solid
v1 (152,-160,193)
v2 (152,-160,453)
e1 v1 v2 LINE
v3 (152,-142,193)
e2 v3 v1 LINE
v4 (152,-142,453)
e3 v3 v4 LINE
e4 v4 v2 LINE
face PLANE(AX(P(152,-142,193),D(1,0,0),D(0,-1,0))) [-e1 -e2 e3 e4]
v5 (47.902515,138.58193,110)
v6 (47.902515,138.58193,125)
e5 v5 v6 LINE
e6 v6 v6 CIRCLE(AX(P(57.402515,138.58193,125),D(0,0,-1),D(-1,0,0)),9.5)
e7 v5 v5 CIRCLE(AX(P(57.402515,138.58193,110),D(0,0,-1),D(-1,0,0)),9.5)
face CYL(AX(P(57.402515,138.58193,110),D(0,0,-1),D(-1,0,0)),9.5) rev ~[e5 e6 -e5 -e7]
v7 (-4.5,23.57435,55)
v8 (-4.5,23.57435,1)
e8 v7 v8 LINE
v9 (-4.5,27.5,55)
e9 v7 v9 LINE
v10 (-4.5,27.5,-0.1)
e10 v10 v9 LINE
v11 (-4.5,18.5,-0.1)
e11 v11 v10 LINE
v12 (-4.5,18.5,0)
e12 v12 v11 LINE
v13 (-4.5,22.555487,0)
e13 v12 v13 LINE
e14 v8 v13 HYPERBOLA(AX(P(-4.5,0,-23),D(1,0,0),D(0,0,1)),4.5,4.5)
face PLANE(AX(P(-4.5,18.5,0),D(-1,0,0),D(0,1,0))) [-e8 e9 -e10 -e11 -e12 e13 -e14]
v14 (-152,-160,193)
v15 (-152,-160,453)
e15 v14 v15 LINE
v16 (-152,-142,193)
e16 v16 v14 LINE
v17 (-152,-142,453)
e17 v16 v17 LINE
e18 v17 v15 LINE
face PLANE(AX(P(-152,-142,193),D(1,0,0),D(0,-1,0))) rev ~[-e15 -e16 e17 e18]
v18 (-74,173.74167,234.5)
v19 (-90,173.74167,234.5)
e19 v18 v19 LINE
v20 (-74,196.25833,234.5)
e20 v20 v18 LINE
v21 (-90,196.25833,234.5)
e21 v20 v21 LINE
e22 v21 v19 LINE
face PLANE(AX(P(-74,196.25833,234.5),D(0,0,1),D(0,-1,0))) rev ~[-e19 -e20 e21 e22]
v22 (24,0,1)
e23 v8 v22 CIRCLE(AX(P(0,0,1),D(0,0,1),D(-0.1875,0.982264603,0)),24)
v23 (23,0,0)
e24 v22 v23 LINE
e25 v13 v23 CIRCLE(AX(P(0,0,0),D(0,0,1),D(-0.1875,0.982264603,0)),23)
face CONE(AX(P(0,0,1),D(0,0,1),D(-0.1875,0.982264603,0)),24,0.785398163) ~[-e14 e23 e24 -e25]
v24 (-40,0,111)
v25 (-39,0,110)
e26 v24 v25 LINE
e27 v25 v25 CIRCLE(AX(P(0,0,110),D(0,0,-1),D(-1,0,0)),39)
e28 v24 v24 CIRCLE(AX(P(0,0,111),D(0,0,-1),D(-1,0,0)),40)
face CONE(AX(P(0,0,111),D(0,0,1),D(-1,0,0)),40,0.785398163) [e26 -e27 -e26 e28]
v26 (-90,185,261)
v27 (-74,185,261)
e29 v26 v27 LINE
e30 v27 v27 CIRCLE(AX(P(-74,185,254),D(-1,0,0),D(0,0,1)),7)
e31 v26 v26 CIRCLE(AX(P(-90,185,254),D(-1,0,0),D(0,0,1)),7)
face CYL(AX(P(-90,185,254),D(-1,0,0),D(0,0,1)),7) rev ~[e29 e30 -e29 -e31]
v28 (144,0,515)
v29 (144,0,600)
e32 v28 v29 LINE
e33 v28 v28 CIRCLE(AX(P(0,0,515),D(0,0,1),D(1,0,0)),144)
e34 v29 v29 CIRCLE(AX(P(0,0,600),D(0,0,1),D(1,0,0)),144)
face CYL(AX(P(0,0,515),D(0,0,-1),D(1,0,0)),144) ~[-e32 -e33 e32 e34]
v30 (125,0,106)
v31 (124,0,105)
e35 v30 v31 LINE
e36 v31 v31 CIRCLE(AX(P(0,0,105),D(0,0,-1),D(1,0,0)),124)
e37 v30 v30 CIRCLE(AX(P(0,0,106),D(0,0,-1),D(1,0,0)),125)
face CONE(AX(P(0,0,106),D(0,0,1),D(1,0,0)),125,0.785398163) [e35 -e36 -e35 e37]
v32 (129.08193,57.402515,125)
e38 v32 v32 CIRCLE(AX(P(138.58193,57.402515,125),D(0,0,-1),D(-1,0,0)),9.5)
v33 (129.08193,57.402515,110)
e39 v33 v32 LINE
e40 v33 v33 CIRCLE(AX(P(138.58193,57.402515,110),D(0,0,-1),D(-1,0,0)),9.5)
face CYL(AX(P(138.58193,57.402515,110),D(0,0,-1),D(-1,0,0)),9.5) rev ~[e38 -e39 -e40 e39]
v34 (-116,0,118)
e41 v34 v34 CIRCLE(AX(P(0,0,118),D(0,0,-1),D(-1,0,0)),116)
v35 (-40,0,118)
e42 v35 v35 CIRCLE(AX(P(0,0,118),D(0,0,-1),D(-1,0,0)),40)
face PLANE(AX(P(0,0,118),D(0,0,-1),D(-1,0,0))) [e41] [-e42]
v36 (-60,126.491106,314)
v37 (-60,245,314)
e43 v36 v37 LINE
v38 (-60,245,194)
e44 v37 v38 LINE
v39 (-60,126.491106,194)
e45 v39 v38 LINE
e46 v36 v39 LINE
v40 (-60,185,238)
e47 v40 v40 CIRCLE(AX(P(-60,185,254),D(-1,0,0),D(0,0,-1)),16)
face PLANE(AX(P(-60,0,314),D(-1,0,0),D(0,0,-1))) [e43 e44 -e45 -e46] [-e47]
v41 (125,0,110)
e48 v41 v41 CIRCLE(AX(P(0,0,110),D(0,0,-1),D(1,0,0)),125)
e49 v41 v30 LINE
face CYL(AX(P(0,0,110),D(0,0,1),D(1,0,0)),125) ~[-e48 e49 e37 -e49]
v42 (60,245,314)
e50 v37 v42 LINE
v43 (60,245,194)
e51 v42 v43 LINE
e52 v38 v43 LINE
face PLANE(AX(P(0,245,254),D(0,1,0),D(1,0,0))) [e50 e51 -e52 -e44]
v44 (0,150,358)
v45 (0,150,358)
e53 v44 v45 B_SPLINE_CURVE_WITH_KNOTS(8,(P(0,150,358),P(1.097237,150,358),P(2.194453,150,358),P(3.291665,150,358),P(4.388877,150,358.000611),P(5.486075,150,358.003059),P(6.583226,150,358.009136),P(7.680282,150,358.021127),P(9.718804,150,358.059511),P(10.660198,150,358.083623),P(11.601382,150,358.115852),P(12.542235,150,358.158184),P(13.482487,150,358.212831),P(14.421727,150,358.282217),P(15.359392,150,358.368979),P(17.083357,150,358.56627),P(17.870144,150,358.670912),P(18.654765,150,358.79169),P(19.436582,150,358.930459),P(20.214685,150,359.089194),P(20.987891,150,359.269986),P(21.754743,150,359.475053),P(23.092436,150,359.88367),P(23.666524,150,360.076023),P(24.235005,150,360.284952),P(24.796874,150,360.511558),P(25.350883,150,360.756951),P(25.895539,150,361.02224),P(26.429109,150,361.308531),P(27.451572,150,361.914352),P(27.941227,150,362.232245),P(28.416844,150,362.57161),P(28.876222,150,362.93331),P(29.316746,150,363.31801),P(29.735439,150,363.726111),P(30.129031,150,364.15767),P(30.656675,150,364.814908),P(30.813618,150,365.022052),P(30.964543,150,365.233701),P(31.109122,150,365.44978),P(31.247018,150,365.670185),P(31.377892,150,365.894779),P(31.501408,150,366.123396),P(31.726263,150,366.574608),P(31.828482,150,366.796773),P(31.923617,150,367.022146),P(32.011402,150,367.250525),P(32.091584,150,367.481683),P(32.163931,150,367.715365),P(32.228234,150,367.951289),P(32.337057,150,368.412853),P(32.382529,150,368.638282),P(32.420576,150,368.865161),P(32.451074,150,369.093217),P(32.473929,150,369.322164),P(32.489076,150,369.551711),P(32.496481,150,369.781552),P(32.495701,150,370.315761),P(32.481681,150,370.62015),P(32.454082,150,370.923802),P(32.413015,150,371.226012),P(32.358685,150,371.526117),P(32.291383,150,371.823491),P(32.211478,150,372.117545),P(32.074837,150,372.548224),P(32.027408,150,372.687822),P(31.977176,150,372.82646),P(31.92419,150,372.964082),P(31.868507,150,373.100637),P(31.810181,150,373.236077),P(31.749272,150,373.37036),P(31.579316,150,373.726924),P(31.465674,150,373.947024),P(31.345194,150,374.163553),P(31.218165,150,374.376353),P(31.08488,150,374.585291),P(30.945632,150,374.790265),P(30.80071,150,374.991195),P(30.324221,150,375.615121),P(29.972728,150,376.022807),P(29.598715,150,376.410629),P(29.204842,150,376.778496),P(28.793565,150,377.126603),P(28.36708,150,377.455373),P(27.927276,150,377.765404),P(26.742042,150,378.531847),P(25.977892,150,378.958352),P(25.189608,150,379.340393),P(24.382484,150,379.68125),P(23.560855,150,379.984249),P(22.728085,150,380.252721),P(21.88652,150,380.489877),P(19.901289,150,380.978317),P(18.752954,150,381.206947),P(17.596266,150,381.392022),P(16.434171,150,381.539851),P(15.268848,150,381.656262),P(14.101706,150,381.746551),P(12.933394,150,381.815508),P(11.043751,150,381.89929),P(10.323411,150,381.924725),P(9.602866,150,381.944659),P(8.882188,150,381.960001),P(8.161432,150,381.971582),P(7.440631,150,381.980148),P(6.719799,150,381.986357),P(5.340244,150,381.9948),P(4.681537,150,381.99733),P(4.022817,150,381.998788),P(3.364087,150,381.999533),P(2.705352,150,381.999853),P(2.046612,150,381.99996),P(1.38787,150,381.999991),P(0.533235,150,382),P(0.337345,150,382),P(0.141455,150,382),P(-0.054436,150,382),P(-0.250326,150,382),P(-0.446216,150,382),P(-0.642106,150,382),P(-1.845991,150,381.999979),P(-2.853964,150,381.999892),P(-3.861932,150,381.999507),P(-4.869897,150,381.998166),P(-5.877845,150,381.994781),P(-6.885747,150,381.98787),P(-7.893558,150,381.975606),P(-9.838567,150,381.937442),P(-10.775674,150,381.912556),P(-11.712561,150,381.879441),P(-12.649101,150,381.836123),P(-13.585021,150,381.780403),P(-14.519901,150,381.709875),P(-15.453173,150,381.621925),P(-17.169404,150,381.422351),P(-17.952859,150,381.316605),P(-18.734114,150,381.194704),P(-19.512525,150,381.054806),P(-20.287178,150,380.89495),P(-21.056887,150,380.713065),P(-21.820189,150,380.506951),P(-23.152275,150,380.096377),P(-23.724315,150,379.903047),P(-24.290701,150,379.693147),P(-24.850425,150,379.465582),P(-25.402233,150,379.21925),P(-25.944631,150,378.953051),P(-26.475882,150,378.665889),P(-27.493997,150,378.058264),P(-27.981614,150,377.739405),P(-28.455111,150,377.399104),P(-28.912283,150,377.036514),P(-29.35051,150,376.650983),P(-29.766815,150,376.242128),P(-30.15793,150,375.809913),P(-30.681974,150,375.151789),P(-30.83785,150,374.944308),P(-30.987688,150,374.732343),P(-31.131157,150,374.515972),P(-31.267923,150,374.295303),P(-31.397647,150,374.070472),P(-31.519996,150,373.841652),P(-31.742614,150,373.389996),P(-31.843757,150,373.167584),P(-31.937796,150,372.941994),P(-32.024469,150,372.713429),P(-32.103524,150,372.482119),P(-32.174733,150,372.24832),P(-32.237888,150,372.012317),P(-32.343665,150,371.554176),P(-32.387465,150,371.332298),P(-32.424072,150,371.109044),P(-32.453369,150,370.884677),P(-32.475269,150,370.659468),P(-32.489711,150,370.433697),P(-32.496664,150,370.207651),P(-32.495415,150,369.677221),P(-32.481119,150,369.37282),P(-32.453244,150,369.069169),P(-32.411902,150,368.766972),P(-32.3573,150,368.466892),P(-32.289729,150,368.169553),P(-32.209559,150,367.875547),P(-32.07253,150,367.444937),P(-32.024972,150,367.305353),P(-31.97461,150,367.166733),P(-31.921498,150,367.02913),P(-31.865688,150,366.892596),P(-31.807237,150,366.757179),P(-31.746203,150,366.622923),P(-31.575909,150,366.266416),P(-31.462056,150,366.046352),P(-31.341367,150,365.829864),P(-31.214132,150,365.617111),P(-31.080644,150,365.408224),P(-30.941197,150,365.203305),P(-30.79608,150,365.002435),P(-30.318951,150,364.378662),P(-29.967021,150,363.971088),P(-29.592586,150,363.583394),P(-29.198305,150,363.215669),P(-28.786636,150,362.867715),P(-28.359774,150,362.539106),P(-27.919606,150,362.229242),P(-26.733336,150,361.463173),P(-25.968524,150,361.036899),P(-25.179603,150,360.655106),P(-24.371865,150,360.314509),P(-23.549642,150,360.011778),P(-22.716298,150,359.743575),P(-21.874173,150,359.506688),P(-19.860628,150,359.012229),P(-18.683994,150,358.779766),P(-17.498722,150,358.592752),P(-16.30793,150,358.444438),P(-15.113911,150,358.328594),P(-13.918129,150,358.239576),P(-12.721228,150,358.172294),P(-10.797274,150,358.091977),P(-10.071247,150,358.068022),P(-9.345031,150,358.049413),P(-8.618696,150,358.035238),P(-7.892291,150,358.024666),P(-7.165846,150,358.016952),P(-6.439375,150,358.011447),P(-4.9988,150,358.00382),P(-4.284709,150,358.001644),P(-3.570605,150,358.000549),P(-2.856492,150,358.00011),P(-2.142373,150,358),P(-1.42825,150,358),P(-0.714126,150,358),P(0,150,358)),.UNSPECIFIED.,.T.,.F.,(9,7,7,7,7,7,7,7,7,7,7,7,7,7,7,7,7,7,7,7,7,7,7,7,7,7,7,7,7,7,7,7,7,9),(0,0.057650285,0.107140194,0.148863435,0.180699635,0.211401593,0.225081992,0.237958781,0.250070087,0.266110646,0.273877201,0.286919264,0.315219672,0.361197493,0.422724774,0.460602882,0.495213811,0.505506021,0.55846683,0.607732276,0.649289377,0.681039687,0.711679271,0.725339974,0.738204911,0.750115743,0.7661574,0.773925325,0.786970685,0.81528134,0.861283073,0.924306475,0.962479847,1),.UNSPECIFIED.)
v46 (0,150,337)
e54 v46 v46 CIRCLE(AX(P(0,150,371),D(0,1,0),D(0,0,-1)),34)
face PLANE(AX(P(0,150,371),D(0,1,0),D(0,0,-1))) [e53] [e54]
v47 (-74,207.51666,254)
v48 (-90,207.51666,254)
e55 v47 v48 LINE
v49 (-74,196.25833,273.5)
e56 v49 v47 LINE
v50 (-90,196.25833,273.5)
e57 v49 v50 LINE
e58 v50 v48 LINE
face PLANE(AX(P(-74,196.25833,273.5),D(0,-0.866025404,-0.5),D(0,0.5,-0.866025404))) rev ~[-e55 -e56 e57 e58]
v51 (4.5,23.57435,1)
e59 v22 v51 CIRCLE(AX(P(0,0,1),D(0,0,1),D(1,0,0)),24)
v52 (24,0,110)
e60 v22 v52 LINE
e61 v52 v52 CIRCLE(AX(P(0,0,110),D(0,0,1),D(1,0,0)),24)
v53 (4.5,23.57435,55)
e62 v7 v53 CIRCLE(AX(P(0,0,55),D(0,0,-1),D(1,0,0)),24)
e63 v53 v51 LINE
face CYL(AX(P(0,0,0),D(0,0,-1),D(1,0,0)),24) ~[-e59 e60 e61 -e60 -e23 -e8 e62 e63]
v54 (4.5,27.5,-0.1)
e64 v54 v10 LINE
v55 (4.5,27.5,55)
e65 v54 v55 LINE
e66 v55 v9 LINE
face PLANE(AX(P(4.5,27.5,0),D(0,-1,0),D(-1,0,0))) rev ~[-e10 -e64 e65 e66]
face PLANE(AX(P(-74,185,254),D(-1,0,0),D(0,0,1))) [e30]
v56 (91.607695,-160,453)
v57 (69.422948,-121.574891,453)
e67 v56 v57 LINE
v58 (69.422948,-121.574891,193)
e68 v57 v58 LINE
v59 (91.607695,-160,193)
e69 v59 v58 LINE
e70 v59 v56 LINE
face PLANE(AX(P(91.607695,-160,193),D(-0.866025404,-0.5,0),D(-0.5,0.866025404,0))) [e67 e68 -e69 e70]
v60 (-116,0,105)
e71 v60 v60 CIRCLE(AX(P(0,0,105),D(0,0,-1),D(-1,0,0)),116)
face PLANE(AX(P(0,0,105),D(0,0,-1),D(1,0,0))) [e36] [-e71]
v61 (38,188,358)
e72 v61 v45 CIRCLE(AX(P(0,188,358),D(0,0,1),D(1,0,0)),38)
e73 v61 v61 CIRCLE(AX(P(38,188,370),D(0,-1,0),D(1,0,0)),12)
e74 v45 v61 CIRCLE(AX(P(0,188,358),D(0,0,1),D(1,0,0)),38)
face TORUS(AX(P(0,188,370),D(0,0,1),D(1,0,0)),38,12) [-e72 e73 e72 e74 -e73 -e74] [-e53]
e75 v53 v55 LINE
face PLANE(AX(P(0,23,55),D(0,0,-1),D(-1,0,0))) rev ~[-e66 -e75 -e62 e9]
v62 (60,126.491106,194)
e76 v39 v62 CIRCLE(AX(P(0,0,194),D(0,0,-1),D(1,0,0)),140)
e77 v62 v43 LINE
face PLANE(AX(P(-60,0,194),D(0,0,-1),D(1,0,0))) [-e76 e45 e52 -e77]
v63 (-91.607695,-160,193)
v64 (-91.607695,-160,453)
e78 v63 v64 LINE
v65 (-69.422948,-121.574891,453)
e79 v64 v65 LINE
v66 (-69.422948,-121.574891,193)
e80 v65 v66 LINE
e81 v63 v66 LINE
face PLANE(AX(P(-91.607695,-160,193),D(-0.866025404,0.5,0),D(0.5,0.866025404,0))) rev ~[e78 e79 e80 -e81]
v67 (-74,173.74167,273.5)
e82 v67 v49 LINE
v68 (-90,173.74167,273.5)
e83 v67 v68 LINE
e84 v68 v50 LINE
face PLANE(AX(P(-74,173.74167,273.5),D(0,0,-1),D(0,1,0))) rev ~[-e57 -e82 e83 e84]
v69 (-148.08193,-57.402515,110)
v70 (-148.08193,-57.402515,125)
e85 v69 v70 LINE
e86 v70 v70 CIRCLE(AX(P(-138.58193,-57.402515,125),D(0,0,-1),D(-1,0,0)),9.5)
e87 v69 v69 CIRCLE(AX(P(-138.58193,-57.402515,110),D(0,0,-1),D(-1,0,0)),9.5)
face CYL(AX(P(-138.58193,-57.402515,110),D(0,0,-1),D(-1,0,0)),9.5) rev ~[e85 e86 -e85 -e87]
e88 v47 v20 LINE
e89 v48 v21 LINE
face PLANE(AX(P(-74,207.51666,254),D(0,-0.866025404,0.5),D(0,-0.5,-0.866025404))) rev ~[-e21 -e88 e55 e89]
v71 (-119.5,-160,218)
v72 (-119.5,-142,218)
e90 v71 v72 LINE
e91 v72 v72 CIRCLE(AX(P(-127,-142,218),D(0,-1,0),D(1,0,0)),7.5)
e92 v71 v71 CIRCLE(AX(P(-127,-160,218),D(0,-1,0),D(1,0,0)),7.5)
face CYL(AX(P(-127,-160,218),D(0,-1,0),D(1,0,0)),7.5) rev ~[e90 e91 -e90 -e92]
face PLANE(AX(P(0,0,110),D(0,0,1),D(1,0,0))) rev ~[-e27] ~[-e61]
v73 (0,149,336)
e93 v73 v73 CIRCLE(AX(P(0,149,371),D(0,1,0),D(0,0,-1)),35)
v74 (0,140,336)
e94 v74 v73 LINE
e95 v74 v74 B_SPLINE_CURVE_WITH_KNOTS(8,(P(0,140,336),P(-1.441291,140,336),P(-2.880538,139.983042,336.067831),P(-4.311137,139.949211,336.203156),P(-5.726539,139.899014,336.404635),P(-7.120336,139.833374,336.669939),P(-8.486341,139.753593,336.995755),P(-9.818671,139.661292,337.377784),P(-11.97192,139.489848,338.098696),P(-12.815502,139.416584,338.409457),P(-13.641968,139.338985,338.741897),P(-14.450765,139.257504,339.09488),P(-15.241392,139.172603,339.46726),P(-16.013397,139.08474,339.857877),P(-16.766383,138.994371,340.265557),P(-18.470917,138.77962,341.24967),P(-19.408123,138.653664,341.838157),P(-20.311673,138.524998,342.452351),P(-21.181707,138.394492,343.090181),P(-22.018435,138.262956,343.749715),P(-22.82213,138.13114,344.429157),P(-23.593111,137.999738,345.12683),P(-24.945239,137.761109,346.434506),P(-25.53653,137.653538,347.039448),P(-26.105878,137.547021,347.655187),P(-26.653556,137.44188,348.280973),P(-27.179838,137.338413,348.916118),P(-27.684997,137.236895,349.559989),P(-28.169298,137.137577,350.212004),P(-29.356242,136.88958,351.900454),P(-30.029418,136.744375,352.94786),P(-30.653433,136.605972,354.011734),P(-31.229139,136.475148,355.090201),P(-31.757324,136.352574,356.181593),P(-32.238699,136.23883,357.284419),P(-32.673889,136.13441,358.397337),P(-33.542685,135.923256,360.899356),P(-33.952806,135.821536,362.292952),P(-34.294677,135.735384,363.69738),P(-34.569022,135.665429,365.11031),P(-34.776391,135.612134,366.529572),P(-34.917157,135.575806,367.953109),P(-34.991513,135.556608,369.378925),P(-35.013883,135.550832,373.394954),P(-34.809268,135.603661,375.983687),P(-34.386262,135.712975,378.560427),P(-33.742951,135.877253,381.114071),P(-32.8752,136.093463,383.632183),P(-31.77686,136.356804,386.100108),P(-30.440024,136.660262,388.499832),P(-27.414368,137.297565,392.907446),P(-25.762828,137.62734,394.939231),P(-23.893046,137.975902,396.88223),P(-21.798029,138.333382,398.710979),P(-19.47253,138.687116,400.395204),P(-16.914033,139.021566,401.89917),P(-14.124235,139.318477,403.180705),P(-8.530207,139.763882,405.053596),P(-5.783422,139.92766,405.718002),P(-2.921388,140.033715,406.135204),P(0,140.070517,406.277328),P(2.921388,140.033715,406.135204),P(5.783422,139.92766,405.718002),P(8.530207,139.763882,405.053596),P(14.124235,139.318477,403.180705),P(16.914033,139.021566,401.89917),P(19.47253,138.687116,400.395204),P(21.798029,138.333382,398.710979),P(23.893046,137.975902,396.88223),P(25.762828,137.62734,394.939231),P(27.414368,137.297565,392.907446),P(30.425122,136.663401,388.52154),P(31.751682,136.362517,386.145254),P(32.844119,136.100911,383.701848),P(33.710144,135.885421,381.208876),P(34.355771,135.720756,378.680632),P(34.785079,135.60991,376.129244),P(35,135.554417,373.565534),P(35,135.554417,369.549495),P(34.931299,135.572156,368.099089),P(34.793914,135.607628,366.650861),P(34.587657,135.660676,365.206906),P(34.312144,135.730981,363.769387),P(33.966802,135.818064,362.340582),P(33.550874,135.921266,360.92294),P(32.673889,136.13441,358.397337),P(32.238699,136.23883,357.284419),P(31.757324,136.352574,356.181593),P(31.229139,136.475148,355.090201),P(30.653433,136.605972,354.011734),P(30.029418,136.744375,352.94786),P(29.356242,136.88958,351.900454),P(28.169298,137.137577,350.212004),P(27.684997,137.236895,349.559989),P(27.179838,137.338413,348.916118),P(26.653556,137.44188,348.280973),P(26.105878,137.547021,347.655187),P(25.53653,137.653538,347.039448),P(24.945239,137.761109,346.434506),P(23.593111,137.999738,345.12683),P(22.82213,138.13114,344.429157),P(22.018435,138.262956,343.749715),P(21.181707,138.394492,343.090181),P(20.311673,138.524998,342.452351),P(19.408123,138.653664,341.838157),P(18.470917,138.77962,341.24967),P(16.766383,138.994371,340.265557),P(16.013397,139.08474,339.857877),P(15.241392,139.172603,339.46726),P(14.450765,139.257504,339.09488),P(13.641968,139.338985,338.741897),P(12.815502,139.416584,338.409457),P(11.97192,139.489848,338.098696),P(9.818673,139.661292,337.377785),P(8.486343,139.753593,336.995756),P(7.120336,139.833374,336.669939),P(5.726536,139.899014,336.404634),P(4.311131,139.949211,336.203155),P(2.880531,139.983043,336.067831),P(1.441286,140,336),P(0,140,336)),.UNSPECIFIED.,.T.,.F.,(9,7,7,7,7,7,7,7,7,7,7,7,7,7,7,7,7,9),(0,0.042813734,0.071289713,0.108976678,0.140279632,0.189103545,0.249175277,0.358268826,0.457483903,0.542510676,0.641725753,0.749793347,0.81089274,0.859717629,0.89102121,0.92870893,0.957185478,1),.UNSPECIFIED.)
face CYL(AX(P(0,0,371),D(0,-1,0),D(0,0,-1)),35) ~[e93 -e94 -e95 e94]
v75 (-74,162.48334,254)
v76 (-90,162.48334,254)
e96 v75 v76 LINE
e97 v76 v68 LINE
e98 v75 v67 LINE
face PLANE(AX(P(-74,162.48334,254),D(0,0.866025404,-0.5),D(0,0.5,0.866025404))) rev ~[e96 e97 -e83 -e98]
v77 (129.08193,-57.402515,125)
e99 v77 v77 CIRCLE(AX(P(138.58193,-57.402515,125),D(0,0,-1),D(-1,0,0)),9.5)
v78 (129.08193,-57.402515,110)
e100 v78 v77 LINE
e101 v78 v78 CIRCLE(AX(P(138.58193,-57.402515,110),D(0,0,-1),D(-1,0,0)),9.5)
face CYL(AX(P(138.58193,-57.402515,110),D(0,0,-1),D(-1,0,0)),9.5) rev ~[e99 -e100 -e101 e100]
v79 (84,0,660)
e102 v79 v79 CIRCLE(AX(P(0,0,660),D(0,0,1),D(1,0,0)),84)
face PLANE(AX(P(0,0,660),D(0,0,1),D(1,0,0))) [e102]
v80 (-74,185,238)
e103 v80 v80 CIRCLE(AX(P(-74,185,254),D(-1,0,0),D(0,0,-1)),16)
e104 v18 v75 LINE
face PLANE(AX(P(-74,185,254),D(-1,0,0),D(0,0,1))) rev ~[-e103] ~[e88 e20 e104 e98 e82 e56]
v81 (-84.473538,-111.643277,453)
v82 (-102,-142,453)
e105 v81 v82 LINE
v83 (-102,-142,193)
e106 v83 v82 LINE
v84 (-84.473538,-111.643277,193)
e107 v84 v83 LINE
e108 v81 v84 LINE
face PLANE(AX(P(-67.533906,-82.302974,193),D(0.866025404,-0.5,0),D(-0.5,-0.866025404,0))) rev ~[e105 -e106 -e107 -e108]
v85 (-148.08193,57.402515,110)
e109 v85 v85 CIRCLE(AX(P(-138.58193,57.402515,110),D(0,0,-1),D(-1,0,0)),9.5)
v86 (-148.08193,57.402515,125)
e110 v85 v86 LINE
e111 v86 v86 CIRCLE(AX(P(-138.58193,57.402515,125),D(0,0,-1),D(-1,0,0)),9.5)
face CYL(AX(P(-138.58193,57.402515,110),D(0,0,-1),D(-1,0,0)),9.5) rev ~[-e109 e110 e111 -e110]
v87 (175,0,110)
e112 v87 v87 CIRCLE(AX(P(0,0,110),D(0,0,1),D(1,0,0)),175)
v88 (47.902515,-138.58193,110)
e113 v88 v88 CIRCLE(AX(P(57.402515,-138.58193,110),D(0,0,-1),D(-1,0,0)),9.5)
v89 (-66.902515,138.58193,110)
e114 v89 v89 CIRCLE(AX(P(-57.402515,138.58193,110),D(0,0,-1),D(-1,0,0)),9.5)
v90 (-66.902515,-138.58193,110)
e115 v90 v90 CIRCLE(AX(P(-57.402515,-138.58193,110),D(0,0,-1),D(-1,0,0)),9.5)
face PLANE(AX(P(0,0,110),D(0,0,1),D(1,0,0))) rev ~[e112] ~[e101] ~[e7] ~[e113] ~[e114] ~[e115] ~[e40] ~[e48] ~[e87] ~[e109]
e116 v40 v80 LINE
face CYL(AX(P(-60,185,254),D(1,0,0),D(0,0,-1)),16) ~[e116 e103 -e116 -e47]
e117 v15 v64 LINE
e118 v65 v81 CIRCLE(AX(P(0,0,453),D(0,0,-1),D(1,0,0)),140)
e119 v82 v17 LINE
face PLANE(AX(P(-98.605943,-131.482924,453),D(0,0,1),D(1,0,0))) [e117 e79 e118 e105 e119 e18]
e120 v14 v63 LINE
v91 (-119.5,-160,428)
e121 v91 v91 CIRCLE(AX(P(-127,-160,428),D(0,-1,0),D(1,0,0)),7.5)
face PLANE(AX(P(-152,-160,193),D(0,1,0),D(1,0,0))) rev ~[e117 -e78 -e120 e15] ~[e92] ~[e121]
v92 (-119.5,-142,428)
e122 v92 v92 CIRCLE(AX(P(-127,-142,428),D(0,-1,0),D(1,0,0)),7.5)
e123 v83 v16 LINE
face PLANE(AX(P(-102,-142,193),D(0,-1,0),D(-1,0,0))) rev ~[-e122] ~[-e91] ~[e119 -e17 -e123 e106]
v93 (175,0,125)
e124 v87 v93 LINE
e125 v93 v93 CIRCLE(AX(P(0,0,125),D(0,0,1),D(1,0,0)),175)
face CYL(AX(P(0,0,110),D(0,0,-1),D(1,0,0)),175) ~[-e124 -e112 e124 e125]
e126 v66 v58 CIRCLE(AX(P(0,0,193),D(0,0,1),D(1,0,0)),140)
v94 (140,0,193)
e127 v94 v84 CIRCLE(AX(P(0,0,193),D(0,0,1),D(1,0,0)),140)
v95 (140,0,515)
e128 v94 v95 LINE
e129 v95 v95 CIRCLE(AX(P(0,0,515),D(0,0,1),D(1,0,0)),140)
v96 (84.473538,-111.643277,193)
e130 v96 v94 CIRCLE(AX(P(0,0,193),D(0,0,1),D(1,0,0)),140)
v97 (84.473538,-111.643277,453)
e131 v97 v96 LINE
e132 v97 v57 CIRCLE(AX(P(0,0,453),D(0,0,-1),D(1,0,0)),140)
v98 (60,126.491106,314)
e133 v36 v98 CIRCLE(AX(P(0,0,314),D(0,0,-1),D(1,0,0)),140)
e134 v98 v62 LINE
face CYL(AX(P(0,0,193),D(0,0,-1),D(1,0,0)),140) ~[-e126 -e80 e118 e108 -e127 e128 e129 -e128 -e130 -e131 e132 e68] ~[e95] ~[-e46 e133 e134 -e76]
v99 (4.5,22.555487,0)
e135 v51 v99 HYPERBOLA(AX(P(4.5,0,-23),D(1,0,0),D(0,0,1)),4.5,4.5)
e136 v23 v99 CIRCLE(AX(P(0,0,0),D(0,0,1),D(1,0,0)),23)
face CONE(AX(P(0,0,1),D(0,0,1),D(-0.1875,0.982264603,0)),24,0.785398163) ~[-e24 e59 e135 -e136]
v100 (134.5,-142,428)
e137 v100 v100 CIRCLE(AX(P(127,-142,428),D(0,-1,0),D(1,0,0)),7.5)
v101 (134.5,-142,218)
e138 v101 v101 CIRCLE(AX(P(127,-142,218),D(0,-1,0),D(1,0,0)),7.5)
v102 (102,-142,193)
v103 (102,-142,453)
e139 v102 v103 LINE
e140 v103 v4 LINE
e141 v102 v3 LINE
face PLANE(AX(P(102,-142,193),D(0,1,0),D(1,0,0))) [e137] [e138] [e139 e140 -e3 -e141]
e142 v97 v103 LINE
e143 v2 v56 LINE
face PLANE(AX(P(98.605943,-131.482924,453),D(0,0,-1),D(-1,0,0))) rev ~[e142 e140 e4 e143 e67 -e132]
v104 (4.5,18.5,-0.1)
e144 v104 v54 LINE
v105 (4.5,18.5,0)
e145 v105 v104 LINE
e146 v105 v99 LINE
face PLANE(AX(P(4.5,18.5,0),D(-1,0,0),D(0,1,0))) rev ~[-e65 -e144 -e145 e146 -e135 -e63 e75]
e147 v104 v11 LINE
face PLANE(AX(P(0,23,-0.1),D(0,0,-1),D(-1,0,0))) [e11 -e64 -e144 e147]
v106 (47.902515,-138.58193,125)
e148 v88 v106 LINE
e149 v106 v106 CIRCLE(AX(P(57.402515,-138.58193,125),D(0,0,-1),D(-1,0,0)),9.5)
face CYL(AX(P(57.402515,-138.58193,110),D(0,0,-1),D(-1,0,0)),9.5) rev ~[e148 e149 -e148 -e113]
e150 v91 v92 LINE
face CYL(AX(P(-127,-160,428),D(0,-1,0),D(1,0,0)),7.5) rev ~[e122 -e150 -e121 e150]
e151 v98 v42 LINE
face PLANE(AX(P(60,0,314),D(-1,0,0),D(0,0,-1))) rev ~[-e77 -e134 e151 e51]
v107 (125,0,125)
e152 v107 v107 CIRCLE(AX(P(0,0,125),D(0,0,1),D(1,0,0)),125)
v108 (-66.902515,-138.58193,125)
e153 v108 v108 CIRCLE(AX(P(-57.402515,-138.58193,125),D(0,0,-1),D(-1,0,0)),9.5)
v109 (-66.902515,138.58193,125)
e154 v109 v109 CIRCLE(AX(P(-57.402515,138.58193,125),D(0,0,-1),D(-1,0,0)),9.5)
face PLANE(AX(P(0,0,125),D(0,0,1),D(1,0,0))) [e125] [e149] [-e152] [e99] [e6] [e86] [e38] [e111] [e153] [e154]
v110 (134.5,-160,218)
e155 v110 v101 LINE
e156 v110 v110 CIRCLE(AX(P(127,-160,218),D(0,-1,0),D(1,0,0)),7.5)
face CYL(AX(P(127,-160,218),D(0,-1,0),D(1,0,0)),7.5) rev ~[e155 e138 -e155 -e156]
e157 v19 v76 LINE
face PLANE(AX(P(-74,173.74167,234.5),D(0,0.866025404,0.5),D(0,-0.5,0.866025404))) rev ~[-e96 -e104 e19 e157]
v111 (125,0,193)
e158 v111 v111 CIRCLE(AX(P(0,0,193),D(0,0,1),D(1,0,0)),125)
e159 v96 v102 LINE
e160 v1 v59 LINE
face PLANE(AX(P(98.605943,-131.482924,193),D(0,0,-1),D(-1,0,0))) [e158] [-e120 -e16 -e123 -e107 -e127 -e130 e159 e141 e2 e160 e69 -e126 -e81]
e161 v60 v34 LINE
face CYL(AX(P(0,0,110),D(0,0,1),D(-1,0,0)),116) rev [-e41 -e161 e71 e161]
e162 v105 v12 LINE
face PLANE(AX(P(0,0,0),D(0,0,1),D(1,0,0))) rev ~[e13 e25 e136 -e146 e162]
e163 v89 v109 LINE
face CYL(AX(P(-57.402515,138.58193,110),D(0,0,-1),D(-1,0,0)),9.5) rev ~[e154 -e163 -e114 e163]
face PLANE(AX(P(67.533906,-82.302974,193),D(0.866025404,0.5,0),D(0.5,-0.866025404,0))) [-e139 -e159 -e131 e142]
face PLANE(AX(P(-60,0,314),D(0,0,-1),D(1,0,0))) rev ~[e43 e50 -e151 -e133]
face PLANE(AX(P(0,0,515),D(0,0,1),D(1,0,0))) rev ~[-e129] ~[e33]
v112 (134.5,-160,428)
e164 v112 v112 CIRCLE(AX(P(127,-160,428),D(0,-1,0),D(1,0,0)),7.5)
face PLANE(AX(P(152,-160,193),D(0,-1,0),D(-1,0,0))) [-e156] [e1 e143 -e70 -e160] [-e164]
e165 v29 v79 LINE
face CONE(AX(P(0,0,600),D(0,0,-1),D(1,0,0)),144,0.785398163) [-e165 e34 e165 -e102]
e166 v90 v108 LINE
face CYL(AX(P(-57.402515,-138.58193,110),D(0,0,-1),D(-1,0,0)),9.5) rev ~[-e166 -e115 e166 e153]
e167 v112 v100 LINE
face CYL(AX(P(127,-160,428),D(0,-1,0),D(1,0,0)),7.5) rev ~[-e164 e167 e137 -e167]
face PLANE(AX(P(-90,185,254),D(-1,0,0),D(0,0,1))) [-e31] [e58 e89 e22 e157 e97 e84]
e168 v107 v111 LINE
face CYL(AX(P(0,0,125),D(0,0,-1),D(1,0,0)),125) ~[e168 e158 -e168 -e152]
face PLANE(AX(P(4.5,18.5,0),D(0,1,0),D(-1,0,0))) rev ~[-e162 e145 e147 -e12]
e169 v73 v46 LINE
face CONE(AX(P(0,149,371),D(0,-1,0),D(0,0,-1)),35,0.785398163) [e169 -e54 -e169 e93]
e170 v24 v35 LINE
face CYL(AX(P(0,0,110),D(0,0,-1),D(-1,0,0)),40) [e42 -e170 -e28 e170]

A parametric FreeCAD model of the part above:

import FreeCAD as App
import Part
import Sketcher

V = App.Vector
Q = App.Units.Quantity


def edges_at(feature, points):
    """Names of the edges that pass closest to the given points."""
    edges = feature.Shape.Edges
    near = lambda p: min(range(len(edges)), key=lambda i: edges[i].distToShape(Part.Vertex(*p))[0])
    return sorted({f"Edge{near(p) + 1}" for p in points})

doc = App.newDocument("Part")
body = doc.addObject("PartDesign::Body", "Body")

sketch1 = body.newObject("Sketcher::SketchObject", "Sketch")
sketch1.AttachmentSupport = (doc.getObject("XY_Plane"), [""])
sketch1.MapMode = "FlatFace"
sketch1.addGeometry(Part.Circle(V(0, 0, 0), V(0, 0, 1), 24), False)
sketch1.addConstraint([
    Sketcher.Constraint("Coincident", 0, 3, -1, 1),
    Sketcher.Constraint("Diameter", 0, Q("48 mm")),
])
pad1 = body.newObject("PartDesign::Pad", "Pad")
pad1.Profile = sketch1
pad1.Length = 110

sketch2 = body.newObject("Sketcher::SketchObject", "Sketch001")
sketch2.AttachmentSupport = (doc.getObject("XY_Plane"), [""])
sketch2.MapMode = "FlatFace"
sketch2.addGeometry([
    Part.LineSegment(V(4, 28, 0), V(4, 18, 0)),
    Part.LineSegment(V(4, 18, 0), V(-4, 18, 0)),
    Part.LineSegment(V(-4, 18, 0), V(-4, 28, 0)),
    Part.LineSegment(V(-4, 28, 0), V(4, 28, 0)),
], False)
sketch2.addConstraint([
    Sketcher.Constraint("Coincident", 0, 2, 1, 1),
    Sketcher.Constraint("Coincident", 1, 2, 2, 1),
    Sketcher.Constraint("Coincident", 2, 2, 3, 1),
    Sketcher.Constraint("Coincident", 3, 2, 0, 1),
    Sketcher.Constraint("Vertical", 0),
    Sketcher.Constraint("Horizontal", 1),
    Sketcher.Constraint("Vertical", 2),
    Sketcher.Constraint("Horizontal", 3),
    Sketcher.Constraint("Equal", 3, 0),
    Sketcher.Constraint("DistanceX", 1, 2, 1, 1, Q("9 mm")),
    Sketcher.Constraint("DistanceX", -1, 1, 0, 2, Q("4.5 mm")),
    Sketcher.Constraint("DistanceY", -1, 1, 0, 2, Q("18.5 mm")),
])
pad2 = body.newObject("PartDesign::Pad", "Pad001")
pad2.Profile = sketch2
pad2.Type = "TwoLengths"
pad2.Length = 0.1
pad2.Length2 = 55
pad2.Reversed = True

sketch3 = body.newObject("Sketcher::SketchObject", "Sketch002")
sketch3.AttachmentSupport = (doc.getObject("XY_Plane"), [""])
sketch3.MapMode = "FlatFace"
sketch3.AttachmentOffset = App.Placement(V(0, 0, 110), App.Rotation())
sketch3.addGeometry(Part.Circle(V(0, 0, 0), V(0, 0, 1), 175), False)
sketch3.addConstraint([
    Sketcher.Constraint("Coincident", 0, 3, -1, 1),
    Sketcher.Constraint("Diameter", 0, Q("350 mm")),
])
pad3 = body.newObject("PartDesign::Pad", "Pad002")
pad3.Profile = sketch3
pad3.Length = 15

sketch4 = body.newObject("Sketcher::SketchObject", "Sketch003")
sketch4.AttachmentSupport = (doc.getObject("XY_Plane"), [""])
sketch4.MapMode = "FlatFace"
sketch4.AttachmentOffset = App.Placement(V(0, 0, 110), App.Rotation())
sketch4.addGeometry([
    Part.Circle(V(0, 0, 0), V(0, 0, 1), 125),
    Part.Circle(V(0, 0, 0), V(0, 0, 1), 116),
], False)
sketch4.addConstraint([
    Sketcher.Constraint("Coincident", 0, 3, -1, 1),
    Sketcher.Constraint("Coincident", 1, 3, -1, 1),
    Sketcher.Constraint("Diameter", 0, Q("250 mm")),
    Sketcher.Constraint("Diameter", 1, Q("232 mm")),
])
pad4 = body.newObject("PartDesign::Pad", "Pad003")
pad4.Profile = sketch4
pad4.Length = 5
pad4.Reversed = True

sketch5 = body.newObject("Sketcher::SketchObject", "Sketch004")
sketch5.AttachmentSupport = (doc.getObject("XY_Plane"), [""])
sketch5.MapMode = "FlatFace"
sketch5.AttachmentOffset = App.Placement(V(0, 0, 110), App.Rotation())
sketch5.addGeometry([
    Part.Circle(V(0, 0, 0), V(0, 0, 1), 116),
    Part.Circle(V(0, 0, 0), V(0, 0, 1), 40),
], False)
sketch5.addConstraint([
    Sketcher.Constraint("Coincident", 0, 3, -1, 1),
    Sketcher.Constraint("Coincident", 1, 3, -1, 1),
    Sketcher.Constraint("Diameter", 0, Q("232 mm")),
    Sketcher.Constraint("Diameter", 1, Q("80 mm")),
])
pocket1 = body.newObject("PartDesign::Pocket", "Pocket")
pocket1.Profile = sketch5
pocket1.Length = 8
pocket1.Reversed = True
doc.recompute()

chamfer = body.newObject("PartDesign::Chamfer", "Chamfer")
chamfer.Base = (pocket1, edges_at(pocket1, [(-125, 0, 105), (40, 0, 110), (-15.297, -18.493, 0)]))
chamfer.Size = 1

sketch6 = body.newObject("Sketcher::SketchObject", "Sketch005")
sketch6.AttachmentSupport = (doc.getObject("XY_Plane"), [""])
sketch6.MapMode = "FlatFace"
sketch6.AttachmentOffset = App.Placement(V(0, 0, 110), App.Rotation())
sketch6.addGeometry([
    Part.Circle(V(57, 139, 0), V(0, 0, 1), 10),
    Part.Circle(V(-57, 139, 0), V(0, 0, 1), 10),
    Part.Circle(V(-139, 57, 0), V(0, 0, 1), 10),
    Part.Circle(V(-139, -57, 0), V(0, 0, 1), 10),
    Part.Circle(V(-57, -139, 0), V(0, 0, 1), 10),
    Part.Circle(V(57, -139, 0), V(0, 0, 1), 10),
    Part.Circle(V(139, -57, 0), V(0, 0, 1), 10),
    Part.Circle(V(139, 57, 0), V(0, 0, 1), 10),
], False)
sketch6.addConstraint([
    Sketcher.Constraint("Equal", 0, 1),
    Sketcher.Constraint("Equal", 1, 2),
    Sketcher.Constraint("Equal", 2, 3),
    Sketcher.Constraint("Equal", 3, 4),
    Sketcher.Constraint("Equal", 4, 5),
    Sketcher.Constraint("Equal", 5, 6),
    Sketcher.Constraint("Equal", 6, 7),
    Sketcher.Constraint("Symmetric", 0, 3, 4, 3, -1, 1),
    Sketcher.Constraint("Symmetric", 1, 3, 5, 3, -1, 1),
    Sketcher.Constraint("Symmetric", 2, 3, 6, 3, -1, 1),
    Sketcher.Constraint("Symmetric", 3, 3, 7, 3, -1, 1),
    Sketcher.Constraint("Symmetric", 0, 3, 1, 3, -2),
    Sketcher.Constraint("Symmetric", 3, 3, 6, 3, -2),
    Sketcher.Constraint("Diameter", 0, Q("19 mm")),
    Sketcher.Constraint("DistanceY", -1, 1, 0, 3, Q("138.58193 mm")),
    Sketcher.Constraint("DistanceX", 2, 3, -1, 1, Q("138.58193 mm")),
    Sketcher.Constraint("DistanceX", 1, 3, 0, 3, Q("114.80503 mm")),
    Sketcher.Constraint("DistanceY", 3, 3, 2, 3, Q("114.80503 mm")),
])
pocket2 = body.newObject("PartDesign::Pocket", "Pocket001")
pocket2.Profile = sketch6
pocket2.Type = "ThroughAll"
pocket2.Reversed = True

sketch7 = body.newObject("Sketcher::SketchObject", "Sketch006")
sketch7.AttachmentSupport = (doc.getObject("XY_Plane"), [""])
sketch7.MapMode = "FlatFace"
sketch7.AttachmentOffset = App.Placement(V(0, 0, 125), App.Rotation())
sketch7.addGeometry(Part.Circle(V(0, 0, 0), V(0, 0, 1), 125), False)
sketch7.addConstraint([
    Sketcher.Constraint("Coincident", 0, 3, -1, 1),
    Sketcher.Constraint("Diameter", 0, Q("250 mm")),
])
pad5 = body.newObject("PartDesign::Pad", "Pad004")
pad5.Profile = sketch7
pad5.Length = 68

sketch8 = body.newObject("Sketcher::SketchObject", "Sketch007")
sketch8.AttachmentSupport = (doc.getObject("XY_Plane"), [""])
sketch8.MapMode = "FlatFace"
sketch8.AttachmentOffset = App.Placement(V(0, 0, 193), App.Rotation())
sketch8.addGeometry(Part.Circle(V(0, 0, 0), V(0, 0, 1), 140), False)
sketch8.addConstraint([
    Sketcher.Constraint("Coincident", 0, 3, -1, 1),
    Sketcher.Constraint("Diameter", 0, Q("280 mm")),
])
pad6 = body.newObject("PartDesign::Pad", "Pad005")
pad6.Profile = sketch8
pad6.Length = 322

sketch9 = body.newObject("Sketcher::SketchObject", "Sketch008")
sketch9.AttachmentSupport = (doc.getObject("XY_Plane"), [""])
sketch9.MapMode = "FlatFace"
sketch9.AttachmentOffset = App.Placement(V(0, 0, 515), App.Rotation())
sketch9.addGeometry(Part.Circle(V(0, 0, 0), V(0, 0, 1), 144), False)
sketch9.addConstraint([
    Sketcher.Constraint("Coincident", 0, 3, -1, 1),
    Sketcher.Constraint("Diameter", 0, Q("288 mm")),
])
pad7 = body.newObject("PartDesign::Pad", "Pad006")
pad7.Profile = sketch9
pad7.Length = 145
doc.recompute()

chamfer2 = body.newObject("PartDesign::Chamfer", "Chamfer001")
chamfer2.Base = (pad7, edges_at(pad7, [(-144, 0, 660)]))
chamfer2.Size = 60

sketch10 = body.newObject("Sketcher::SketchObject", "Sketch009")
sketch10.AttachmentSupport = (doc.getObject("XY_Plane"), [""])
sketch10.MapMode = "FlatFace"
sketch10.AttachmentOffset = App.Placement(V(0, 0, 193), App.Rotation())
sketch10.addGeometry([
    Part.LineSegment(V(152, -160, 0), V(92, -160, 0)),
    Part.LineSegment(V(92, -160, 0), V(52, -91, 0)),
    Part.LineSegment(V(52, -91, 0), V(68, -82, 0)),
    Part.LineSegment(V(68, -82, 0), V(102, -142, 0)),
    Part.LineSegment(V(102, -142, 0), V(152, -142, 0)),
    Part.LineSegment(V(152, -142, 0), V(152, -160, 0)),
    Part.LineSegment(V(-52, -91, 0), V(-92, -160, 0)),
    Part.LineSegment(V(-92, -160, 0), V(-152, -160, 0)),
    Part.LineSegment(V(-152, -160, 0), V(-152, -142, 0)),
    Part.LineSegment(V(-152, -142, 0), V(-102, -142, 0)),
    Part.LineSegment(V(-102, -142, 0), V(-68, -82, 0)),
    Part.LineSegment(V(-68, -82, 0), V(-52, -91, 0)),
], False)
sketch10.addConstraint([
    Sketcher.Constraint("Coincident", 0, 2, 1, 1),
    Sketcher.Constraint("Coincident", 1, 2, 2, 1),
    Sketcher.Constraint("Coincident", 2, 2, 3, 1),
    Sketcher.Constraint("Coincident", 3, 2, 4, 1),
    Sketcher.Constraint("Coincident", 4, 2, 5, 1),
    Sketcher.Constraint("Coincident", 5, 2, 0, 1),
    Sketcher.Constraint("Coincident", 6, 2, 7, 1),
    Sketcher.Constraint("Coincident", 7, 2, 8, 1),
    Sketcher.Constraint("Coincident", 8, 2, 9, 1),
    Sketcher.Constraint("Coincident", 9, 2, 10, 1),
    Sketcher.Constraint("Coincident", 10, 2, 11, 1),
    Sketcher.Constraint("Coincident", 11, 2, 6, 1),
    Sketcher.Constraint("Horizontal", 0),
    Sketcher.Constraint("Horizontal", 4),
    Sketcher.Constraint("Vertical", 5),
    Sketcher.Constraint("Horizontal", 7),
    Sketcher.Constraint("Vertical", 8),
    Sketcher.Constraint("Horizontal", 9),
    Sketcher.Constraint("Symmetric", 0, 2, 6, 2, -2),
    Sketcher.Constraint("Symmetric", 4, 2, 8, 2, -2),
    Sketcher.Constraint("Symmetric", 2, 2, 10, 2, -2),
    Sketcher.Constraint("Symmetric", 1, 2, 11, 2, -2),
    Sketcher.Constraint("Perpendicular", 1, 2),
    Sketcher.Constraint("Perpendicular", 2, 3),
    Sketcher.Constraint("Parallel", 6, 10),
    Sketcher.Constraint("DistanceX", 4, 1, 4, 2, Q("50 mm")),
    Sketcher.Constraint("DistanceY", 5, 2, 5, 1, Q("18 mm")),
    Sketcher.Constraint("Angle", 1, Q("120 deg")),
    Sketcher.Constraint("Distance", 2, Q("18 mm")),
    Sketcher.Constraint("DistanceY", 0, 2, -1, 1, Q("160 mm")),
    Sketcher.Constraint("DistanceX", -1, 1, 3, 2, Q("102 mm")),
    Sketcher.Constraint("DistanceX", 6, 2, 2, 2, Q("159.141601 mm")),
])
pad8 = body.newObject("PartDesign::Pad", "Pad007")
pad8.Profile = sketch10
pad8.Length = 260

sketch11 = body.newObject("Sketcher::SketchObject", "Sketch010")
sketch11.AttachmentSupport = (doc.getObject("XZ_Plane"), [""])
sketch11.MapMode = "FlatFace"
sketch11.AttachmentOffset = App.Placement(V(0, 0, 160), App.Rotation())
sketch11.addGeometry(Part.Circle(V(-127, 218, 0), V(0, 0, 1), 8), False)
sketch11.addConstraint([
    Sketcher.Constraint("Diameter", 0, Q("15 mm")),
    Sketcher.Constraint("DistanceX", 0, 3, -1, 1, Q("127 mm")),
    Sketcher.Constraint("DistanceY", -1, 1, 0, 3, Q("218 mm")),
])
pocket3 = body.newObject("PartDesign::Pocket", "Pocket002")
pocket3.Profile = sketch11
pocket3.Type = "UpToFirst"

sketch12 = body.newObject("Sketcher::SketchObject", "Sketch011")
sketch12.AttachmentSupport = (doc.getObject("XZ_Plane"), [""])
sketch12.MapMode = "FlatFace"
sketch12.AttachmentOffset = App.Placement(V(0, 0, 160), App.Rotation())
sketch12.addGeometry(Part.Circle(V(127, 218, 0), V(0, 0, 1), 8), False)
sketch12.addConstraint([
    Sketcher.Constraint("Diameter", 0, Q("15 mm")),
    Sketcher.Constraint("DistanceX", -1, 1, 0, 3, Q("127 mm")),
    Sketcher.Constraint("DistanceY", -1, 1, 0, 3, Q("218 mm")),
])
pocket4 = body.newObject("PartDesign::Pocket", "Pocket003")
pocket4.Profile = sketch12
pocket4.Type = "UpToFirst"

sketch13 = body.newObject("Sketcher::SketchObject", "Sketch012")
sketch13.AttachmentSupport = (doc.getObject("XZ_Plane"), [""])
sketch13.MapMode = "FlatFace"
sketch13.AttachmentOffset = App.Placement(V(0, 0, 160), App.Rotation())
sketch13.addGeometry(Part.Circle(V(-127, 428, 0), V(0, 0, 1), 8), False)
sketch13.addConstraint([
    Sketcher.Constraint("Diameter", 0, Q("15 mm")),
    Sketcher.Constraint("DistanceX", 0, 3, -1, 1, Q("127 mm")),
    Sketcher.Constraint("DistanceY", -1, 1, 0, 3, Q("428 mm")),
])
pocket5 = body.newObject("PartDesign::Pocket", "Pocket004")
pocket5.Profile = sketch13
pocket5.Type = "UpToFirst"

sketch14 = body.newObject("Sketcher::SketchObject", "Sketch013")
sketch14.AttachmentSupport = (doc.getObject("XZ_Plane"), [""])
sketch14.MapMode = "FlatFace"
sketch14.AttachmentOffset = App.Placement(V(0, 0, 160), App.Rotation())
sketch14.addGeometry(Part.Circle(V(127, 428, 0), V(0, 0, 1), 8), False)
sketch14.addConstraint([
    Sketcher.Constraint("Diameter", 0, Q("15 mm")),
    Sketcher.Constraint("DistanceX", -1, 1, 0, 3, Q("127 mm")),
    Sketcher.Constraint("DistanceY", -1, 1, 0, 3, Q("428 mm")),
])
pocket6 = body.newObject("PartDesign::Pocket", "Pocket005")
pocket6.Profile = sketch14
pocket6.Type = "UpToFirst"

sketch15 = body.newObject("Sketcher::SketchObject", "Sketch014")
sketch15.AttachmentSupport = (doc.getObject("XZ_Plane"), [""])
sketch15.MapMode = "FlatFace"
sketch15.addGeometry([
    Part.LineSegment(V(-60, 194, 0), V(-60, 314, 0)),
    Part.LineSegment(V(-60, 314, 0), V(60, 314, 0)),
    Part.LineSegment(V(60, 314, 0), V(60, 194, 0)),
    Part.LineSegment(V(60, 194, 0), V(-60, 194, 0)),
], False)
sketch15.addConstraint([
    Sketcher.Constraint("Coincident", 0, 2, 1, 1),
    Sketcher.Constraint("Coincident", 1, 2, 2, 1),
    Sketcher.Constraint("Coincident", 2, 2, 3, 1),
    Sketcher.Constraint("Coincident", 3, 2, 0, 1),
    Sketcher.Constraint("Vertical", 0),
    Sketcher.Constraint("Horizontal", 1),
    Sketcher.Constraint("Vertical", 2),
    Sketcher.Constraint("Horizontal", 3),
    Sketcher.Constraint("Equal", 3, 0),
    Sketcher.Constraint("DistanceX", 1, 1, 1, 2, Q("120 mm")),
    Sketcher.Constraint("DistanceX", 0, 2, -1, 1, Q("60 mm")),
    Sketcher.Constraint("DistanceY", -1, 1, 0, 2, Q("314 mm")),
])
pad9 = body.newObject("PartDesign::Pad", "Pad008")
pad9.Profile = sketch15
pad9.Length = 245
pad9.Reversed = True

sketch16 = body.newObject("Sketcher::SketchObject", "Sketch015")
sketch16.AttachmentSupport = (doc.getObject("XZ_Plane"), [""])
sketch16.MapMode = "FlatFace"
sketch16.addGeometry(Part.Circle(V(0, 371, 0), V(0, 0, 1), 35), False)
sketch16.addConstraint([
    Sketcher.Constraint("PointOnObject", 0, 3, -2),
    Sketcher.Constraint("Diameter", 0, Q("70 mm")),
    Sketcher.Constraint("DistanceY", -1, 1, 0, 3, Q("371 mm")),
])
pad10 = body.newObject("PartDesign::Pad", "Pad009")
pad10.Profile = sketch16
pad10.Length = 150
pad10.Reversed = True
doc.recompute()

chamfer3 = body.newObject("PartDesign::Chamfer", "Chamfer002")
chamfer3.Base = (pad10, edges_at(pad10, [(0, 150, 406)]))
chamfer3.Size = 1

sketch17 = body.newObject("Sketcher::SketchObject", "Sketch016")
sketch17.AttachmentSupport = (doc.getObject("YZ_Plane"), [""])
sketch17.MapMode = "FlatFace"
sketch17.addGeometry(Part.Circle(V(226, 370, 0), V(0, 0, 1), 12), False)
sketch17.addConstraint([
    Sketcher.Constraint("Diameter", 0, Q("24 mm")),
    Sketcher.Constraint("DistanceX", -1, 1, 0, 3, Q("226 mm")),
    Sketcher.Constraint("DistanceY", -1, 1, 0, 3, Q("370 mm")),
])

sketch18 = body.newObject("Sketcher::SketchObject", "Sketch017")
sketch18.AttachmentSupport = (doc.getObject("XY_Plane"), [""])
sketch18.MapMode = "FlatFace"
sketch18.AttachmentOffset = App.Placement(V(0, 0, 370), App.Rotation())
sketch18.addGeometry(Part.Circle(V(0, 188, 0), V(0, 0, 1), 38), False)
sketch18.addConstraint([
    Sketcher.Constraint("PointOnObject", 0, 3, -2),
    Sketcher.Constraint("Diameter", 0, Q("76 mm")),
    Sketcher.Constraint("DistanceY", -1, 1, 0, 3, Q("188 mm")),
])
doc.recompute()

additivepipe = body.newObject("PartDesign::AdditivePipe", "AdditivePipe")
additivepipe.Profile = sketch17
additivepipe.Spine = (sketch18, ["Edge1"])

sketch19 = body.newObject("Sketcher::SketchObject", "Sketch018")
sketch19.AttachmentSupport = (doc.getObject("YZ_Plane"), [""])
sketch19.MapMode = "FlatFace"
sketch19.AttachmentOffset = App.Placement(V(0, 0, -60), App.Rotation())
sketch19.addGeometry(Part.Circle(V(185, 254, 0), V(0, 0, 1), 16), False)
sketch19.addConstraint([
    Sketcher.Constraint("Diameter", 0, Q("32 mm")),
    Sketcher.Constraint("DistanceX", -1, 1, 0, 3, Q("185 mm")),
    Sketcher.Constraint("DistanceY", -1, 1, 0, 3, Q("254 mm")),
])
pad11 = body.newObject("PartDesign::Pad", "Pad010")
pad11.Profile = sketch19
pad11.Length = 14
pad11.Reversed = True

sketch20 = body.newObject("Sketcher::SketchObject", "Sketch019")
sketch20.AttachmentSupport = (doc.getObject("YZ_Plane"), [""])
sketch20.MapMode = "FlatFace"
sketch20.AttachmentOffset = App.Placement(V(0, 0, -74), App.Rotation())
sketch20.addGeometry([
    Part.LineSegment(V(208, 254, 0), V(196, 234, 0)),
    Part.LineSegment(V(196, 234, 0), V(174, 234, 0)),
    Part.LineSegment(V(174, 234, 0), V(162, 254, 0)),
    Part.LineSegment(V(162, 254, 0), V(174, 274, 0)),
    Part.LineSegment(V(174, 274, 0), V(196, 274, 0)),
    Part.LineSegment(V(196, 274, 0), V(208, 254, 0)),
], False)
sketch20.addConstraint([
    Sketcher.Constraint("Coincident", 0, 2, 1, 1),
    Sketcher.Constraint("Coincident", 1, 2, 2, 1),
    Sketcher.Constraint("Coincident", 2, 2, 3, 1),
    Sketcher.Constraint("Coincident", 3, 2, 4, 1),
    Sketcher.Constraint("Coincident", 4, 2, 5, 1),
    Sketcher.Constraint("Coincident", 5, 2, 0, 1),
    Sketcher.Constraint("Horizontal", 1),
    Sketcher.Constraint("Horizontal", 4),
    Sketcher.Constraint("Parallel", 0, 3),
    Sketcher.Constraint("Parallel", 2, 5),
    Sketcher.Constraint("Horizontal", 2, 2, 5, 2),
    Sketcher.Constraint("Vertical", 1, 2, 3, 2),
    Sketcher.Constraint("Vertical", 0, 2, 4, 2),
    Sketcher.Constraint("Angle", 0, Q("-120 deg")),
    Sketcher.Constraint("DistanceY", -1, 1, 2, 2, Q("254 mm")),
    Sketcher.Constraint("DistanceY", 1, 2, 3, 2, Q("39 mm")),
    Sketcher.Constraint("DistanceX", 1, 2, 1, 1, Q("22.51666 mm")),
    Sketcher.Constraint("DistanceX", -1, 1, 0, 2, Q("196.25833 mm")),
])
pad12 = body.newObject("PartDesign::Pad", "Pad011")
pad12.Profile = sketch20
pad12.Length = 16
pad12.Reversed = True

sketch21 = body.newObject("Sketcher::SketchObject", "Sketch020")
sketch21.AttachmentSupport = (doc.getObject("YZ_Plane"), [""])
sketch21.MapMode = "FlatFace"
sketch21.AttachmentOffset = App.Placement(V(0, 0, -90), App.Rotation())
sketch21.addGeometry(Part.Circle(V(185, 254, 0), V(0, 0, 1), 7), False)
sketch21.addConstraint([
    Sketcher.Constraint("Diameter", 0, Q("14 mm")),
    Sketcher.Constraint("DistanceX", -1, 1, 0, 3, Q("185 mm")),
    Sketcher.Constraint("DistanceY", -1, 1, 0, 3, Q("254 mm")),
])
pocket7 = body.newObject("PartDesign::Pocket", "Pocket006")
pocket7.Profile = sketch21
pocket7.Length = 16
pocket7.Reversed = True

doc.recompute()
